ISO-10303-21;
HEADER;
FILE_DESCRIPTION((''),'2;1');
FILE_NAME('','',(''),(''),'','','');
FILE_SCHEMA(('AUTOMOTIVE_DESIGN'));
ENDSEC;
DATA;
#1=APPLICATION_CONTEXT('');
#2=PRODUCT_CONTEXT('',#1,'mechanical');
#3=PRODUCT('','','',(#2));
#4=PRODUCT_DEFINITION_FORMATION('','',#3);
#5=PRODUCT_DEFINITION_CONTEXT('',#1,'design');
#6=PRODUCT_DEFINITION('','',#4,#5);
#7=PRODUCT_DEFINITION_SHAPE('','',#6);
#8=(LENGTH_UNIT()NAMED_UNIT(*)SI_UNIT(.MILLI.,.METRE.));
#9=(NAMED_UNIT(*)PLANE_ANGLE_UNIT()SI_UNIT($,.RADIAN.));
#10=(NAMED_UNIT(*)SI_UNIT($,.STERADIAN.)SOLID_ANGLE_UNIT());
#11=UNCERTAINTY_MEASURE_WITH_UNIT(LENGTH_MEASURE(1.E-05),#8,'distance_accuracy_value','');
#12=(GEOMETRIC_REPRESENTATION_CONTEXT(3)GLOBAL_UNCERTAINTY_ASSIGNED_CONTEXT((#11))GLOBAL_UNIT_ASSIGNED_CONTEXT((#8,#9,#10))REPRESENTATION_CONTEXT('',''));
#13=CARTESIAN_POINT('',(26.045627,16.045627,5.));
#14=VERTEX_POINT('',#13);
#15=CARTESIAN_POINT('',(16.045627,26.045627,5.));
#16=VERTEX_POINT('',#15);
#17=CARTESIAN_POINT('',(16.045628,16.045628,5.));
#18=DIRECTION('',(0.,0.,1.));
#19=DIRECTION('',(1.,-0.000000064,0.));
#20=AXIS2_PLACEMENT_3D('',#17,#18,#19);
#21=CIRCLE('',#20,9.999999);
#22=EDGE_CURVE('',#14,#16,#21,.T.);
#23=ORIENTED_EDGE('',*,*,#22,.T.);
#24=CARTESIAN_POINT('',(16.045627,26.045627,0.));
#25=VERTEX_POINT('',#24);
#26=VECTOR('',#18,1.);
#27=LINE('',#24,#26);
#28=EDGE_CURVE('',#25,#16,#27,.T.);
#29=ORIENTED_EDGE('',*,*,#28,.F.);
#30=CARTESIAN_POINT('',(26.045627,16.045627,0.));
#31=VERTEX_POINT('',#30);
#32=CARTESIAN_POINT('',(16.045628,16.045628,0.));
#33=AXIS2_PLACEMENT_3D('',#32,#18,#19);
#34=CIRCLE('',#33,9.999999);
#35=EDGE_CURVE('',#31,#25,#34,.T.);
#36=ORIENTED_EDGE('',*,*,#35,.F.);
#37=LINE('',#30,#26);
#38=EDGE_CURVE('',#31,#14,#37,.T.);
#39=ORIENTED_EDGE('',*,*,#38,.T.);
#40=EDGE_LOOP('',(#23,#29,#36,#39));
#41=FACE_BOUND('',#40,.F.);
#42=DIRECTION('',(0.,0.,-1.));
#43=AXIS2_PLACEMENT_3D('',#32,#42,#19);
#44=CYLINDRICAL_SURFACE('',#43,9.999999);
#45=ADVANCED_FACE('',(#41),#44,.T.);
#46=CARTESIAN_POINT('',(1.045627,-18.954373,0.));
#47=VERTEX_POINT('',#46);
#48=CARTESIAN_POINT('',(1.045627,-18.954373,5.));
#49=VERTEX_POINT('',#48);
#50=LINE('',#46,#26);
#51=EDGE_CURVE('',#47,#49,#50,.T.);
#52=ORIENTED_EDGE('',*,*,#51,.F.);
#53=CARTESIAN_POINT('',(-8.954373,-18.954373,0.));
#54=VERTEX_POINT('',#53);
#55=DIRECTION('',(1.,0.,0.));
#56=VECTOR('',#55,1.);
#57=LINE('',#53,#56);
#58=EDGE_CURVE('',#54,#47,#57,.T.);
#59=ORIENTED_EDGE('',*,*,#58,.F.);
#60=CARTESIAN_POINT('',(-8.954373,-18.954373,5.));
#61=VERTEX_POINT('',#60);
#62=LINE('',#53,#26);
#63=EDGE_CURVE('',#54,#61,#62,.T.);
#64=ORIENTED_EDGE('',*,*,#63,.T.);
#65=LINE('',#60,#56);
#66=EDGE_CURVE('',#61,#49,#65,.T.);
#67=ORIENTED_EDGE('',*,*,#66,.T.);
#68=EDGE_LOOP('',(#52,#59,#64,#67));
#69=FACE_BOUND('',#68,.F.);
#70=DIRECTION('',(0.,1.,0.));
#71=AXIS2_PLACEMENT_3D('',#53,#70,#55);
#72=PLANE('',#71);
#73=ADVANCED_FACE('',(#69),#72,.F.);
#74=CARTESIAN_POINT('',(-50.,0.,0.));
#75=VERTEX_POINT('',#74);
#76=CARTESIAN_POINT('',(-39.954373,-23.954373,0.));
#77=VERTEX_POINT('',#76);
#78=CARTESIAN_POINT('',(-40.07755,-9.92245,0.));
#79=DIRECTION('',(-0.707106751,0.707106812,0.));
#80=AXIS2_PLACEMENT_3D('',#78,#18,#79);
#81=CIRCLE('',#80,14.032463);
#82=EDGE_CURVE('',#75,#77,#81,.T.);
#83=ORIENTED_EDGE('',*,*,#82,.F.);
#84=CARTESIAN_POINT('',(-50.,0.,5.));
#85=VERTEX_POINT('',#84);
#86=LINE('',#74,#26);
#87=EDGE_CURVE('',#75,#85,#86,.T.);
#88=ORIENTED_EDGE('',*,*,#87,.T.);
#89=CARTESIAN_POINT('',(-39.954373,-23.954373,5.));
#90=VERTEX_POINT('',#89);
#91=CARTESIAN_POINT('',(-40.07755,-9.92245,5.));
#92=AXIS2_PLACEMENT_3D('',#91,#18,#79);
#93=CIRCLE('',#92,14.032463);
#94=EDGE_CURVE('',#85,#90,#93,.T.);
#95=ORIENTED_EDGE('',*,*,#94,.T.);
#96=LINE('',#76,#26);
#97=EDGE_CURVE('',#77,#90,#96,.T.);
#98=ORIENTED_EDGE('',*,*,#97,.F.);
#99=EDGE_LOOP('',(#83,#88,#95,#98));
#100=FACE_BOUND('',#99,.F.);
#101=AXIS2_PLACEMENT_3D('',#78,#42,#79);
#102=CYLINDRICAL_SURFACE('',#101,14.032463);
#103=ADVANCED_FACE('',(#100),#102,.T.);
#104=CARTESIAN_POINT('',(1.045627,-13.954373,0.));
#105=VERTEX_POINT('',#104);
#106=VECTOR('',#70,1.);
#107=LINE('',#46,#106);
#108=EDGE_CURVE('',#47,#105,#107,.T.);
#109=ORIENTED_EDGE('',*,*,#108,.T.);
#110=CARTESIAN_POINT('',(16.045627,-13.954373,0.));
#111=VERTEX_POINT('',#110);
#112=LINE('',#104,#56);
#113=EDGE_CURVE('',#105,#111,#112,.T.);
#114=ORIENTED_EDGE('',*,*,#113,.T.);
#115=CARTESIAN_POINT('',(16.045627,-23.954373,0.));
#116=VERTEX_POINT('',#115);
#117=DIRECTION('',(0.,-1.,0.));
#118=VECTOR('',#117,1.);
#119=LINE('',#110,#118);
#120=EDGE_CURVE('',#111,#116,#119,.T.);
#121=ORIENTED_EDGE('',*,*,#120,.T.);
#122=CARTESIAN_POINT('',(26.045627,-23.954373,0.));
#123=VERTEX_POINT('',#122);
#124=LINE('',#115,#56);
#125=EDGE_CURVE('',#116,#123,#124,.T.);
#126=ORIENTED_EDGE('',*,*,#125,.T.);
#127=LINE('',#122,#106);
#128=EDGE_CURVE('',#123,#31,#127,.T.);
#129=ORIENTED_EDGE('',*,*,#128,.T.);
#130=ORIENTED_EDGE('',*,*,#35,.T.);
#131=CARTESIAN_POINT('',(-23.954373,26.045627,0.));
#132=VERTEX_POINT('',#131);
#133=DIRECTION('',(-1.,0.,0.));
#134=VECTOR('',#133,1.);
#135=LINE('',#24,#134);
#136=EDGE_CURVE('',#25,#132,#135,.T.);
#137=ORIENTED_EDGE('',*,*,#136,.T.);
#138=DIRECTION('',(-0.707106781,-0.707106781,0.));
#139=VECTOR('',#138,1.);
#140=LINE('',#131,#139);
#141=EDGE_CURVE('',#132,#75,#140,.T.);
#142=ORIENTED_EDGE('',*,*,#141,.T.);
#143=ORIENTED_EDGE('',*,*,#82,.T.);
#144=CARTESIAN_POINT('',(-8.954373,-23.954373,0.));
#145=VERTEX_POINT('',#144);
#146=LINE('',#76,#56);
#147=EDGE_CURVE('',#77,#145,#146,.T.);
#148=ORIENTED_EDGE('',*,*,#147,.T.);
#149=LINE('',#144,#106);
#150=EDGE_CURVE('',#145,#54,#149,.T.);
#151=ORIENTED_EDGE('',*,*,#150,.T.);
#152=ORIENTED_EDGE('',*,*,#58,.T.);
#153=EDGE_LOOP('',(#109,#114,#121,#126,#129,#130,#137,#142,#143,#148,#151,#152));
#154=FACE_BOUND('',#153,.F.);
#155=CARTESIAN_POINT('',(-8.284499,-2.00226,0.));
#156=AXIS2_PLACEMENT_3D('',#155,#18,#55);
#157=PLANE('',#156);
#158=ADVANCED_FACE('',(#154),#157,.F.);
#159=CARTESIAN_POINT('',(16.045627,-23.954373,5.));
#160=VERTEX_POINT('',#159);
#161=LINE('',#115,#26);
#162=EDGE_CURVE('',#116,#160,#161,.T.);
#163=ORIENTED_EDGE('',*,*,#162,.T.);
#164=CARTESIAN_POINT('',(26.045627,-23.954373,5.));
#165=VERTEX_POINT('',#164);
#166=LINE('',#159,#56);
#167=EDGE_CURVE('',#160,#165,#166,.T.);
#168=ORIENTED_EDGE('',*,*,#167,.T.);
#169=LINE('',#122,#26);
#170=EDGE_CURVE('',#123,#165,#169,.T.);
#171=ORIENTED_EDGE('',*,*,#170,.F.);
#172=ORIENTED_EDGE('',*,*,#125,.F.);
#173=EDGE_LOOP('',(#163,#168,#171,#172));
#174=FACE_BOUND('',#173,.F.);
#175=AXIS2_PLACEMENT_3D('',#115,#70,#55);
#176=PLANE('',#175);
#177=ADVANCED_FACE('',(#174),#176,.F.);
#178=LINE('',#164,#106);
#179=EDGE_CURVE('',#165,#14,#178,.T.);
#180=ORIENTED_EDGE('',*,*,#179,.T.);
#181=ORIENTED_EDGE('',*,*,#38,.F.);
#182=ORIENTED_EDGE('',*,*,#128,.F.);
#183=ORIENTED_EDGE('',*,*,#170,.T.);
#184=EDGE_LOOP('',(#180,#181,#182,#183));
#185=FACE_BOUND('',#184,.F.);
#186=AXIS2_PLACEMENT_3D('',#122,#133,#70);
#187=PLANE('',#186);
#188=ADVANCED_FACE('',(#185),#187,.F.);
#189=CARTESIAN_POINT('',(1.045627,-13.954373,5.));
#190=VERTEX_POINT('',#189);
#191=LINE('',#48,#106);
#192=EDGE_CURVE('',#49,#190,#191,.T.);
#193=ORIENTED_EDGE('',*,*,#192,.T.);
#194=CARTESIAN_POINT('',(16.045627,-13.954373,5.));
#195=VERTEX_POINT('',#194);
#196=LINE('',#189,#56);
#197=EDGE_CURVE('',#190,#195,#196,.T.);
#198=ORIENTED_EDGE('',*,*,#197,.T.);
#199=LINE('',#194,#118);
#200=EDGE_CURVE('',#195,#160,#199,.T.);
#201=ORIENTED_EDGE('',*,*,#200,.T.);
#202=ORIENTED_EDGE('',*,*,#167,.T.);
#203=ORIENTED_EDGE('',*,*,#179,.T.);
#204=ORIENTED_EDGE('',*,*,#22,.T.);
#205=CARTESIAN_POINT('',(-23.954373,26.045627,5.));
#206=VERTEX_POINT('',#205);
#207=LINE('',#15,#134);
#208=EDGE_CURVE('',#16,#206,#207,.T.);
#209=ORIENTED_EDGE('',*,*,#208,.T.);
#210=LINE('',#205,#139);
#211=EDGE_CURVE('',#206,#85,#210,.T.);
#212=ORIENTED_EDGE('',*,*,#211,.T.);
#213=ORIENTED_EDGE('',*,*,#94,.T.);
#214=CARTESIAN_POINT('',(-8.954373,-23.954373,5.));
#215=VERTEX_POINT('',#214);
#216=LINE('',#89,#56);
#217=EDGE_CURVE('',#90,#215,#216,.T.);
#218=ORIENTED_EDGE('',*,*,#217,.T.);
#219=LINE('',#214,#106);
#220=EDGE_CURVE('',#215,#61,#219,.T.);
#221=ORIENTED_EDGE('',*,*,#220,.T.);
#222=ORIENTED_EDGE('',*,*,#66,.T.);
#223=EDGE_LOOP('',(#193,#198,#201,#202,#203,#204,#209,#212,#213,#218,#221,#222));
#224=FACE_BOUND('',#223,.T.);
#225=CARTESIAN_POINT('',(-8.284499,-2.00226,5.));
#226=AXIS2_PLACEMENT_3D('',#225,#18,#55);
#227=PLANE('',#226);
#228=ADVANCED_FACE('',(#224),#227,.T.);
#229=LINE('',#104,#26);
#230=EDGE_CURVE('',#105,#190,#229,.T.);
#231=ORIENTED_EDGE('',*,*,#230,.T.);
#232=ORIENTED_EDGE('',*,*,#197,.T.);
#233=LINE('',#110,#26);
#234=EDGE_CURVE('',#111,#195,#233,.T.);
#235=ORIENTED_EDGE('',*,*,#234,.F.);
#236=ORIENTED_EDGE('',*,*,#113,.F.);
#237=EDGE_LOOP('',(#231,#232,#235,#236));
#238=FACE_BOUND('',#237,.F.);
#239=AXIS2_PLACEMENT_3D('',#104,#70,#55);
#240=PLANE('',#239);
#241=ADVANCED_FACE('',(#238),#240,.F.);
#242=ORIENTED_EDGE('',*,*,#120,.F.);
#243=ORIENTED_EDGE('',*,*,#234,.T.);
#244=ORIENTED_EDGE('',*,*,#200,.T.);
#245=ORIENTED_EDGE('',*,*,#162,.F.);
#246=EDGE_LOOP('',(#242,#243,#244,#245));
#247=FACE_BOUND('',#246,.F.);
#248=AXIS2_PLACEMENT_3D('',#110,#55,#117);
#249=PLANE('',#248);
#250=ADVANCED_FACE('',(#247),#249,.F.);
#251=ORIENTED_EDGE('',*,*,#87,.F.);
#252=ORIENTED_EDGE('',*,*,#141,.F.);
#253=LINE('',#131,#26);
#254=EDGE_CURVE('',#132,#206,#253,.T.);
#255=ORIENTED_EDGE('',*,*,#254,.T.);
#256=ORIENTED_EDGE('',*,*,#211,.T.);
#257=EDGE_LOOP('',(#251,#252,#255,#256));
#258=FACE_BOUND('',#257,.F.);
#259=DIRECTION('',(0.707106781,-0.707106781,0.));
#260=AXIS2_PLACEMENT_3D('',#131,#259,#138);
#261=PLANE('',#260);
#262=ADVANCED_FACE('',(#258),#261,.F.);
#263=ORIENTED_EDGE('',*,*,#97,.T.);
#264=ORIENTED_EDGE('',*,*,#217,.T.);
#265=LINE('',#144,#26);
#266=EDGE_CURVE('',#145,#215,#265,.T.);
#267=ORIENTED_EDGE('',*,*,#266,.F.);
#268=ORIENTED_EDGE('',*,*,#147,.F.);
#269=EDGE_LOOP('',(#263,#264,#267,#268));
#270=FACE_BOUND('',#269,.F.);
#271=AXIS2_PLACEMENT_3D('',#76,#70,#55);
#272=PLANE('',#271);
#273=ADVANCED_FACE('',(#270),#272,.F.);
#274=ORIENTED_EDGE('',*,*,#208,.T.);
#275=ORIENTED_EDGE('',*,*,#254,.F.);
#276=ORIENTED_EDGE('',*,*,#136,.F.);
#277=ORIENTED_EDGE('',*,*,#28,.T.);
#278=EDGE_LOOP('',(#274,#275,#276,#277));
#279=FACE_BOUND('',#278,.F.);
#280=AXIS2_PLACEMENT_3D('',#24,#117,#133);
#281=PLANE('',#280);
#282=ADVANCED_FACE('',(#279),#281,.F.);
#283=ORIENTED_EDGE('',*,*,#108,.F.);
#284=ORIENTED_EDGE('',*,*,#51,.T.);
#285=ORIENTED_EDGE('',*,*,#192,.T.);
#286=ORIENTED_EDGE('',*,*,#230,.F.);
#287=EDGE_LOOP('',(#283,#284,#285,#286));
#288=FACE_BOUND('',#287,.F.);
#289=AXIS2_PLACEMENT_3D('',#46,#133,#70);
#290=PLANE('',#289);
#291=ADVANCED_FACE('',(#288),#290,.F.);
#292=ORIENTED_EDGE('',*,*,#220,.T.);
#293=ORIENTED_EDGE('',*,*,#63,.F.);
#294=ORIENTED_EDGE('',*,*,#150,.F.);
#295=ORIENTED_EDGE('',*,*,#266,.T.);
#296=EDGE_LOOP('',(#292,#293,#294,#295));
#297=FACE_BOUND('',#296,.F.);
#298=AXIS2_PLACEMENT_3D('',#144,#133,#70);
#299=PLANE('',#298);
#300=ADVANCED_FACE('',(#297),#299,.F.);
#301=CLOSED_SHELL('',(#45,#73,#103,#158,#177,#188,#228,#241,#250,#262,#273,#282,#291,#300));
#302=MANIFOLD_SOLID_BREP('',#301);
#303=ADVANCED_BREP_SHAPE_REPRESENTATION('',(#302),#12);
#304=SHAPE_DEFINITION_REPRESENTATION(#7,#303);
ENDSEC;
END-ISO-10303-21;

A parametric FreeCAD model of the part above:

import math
import FreeCAD as App
import Part
import Sketcher

V = App.Vector
Q = App.Units.Quantity

doc = App.newDocument("Part")
params = doc.addObject("Spreadsheet::Sheet", "Params")
for row, (alias, value) in enumerate([
    ("sketch1_radius", "9.999999 mm"),
    ("sketch1_width", "40 mm"),
    ("sketch1_width2", "31 mm"),
    ("sketch1_width3", "15 mm"),
    ("pad1_length", "5 mm"),
], start=1):
    params.set(f"A{row}", alias)
    params.set(f"B{row}", "=" + value)
    params.setAlias(f"B{row}", alias)

body = doc.addObject("PartDesign::Body", "Body")

sketch1 = body.newObject("Sketcher::SketchObject", "Sketch")
sketch1.AttachmentSupport = (doc.getObject("XY_Plane"), [""])
sketch1.MapMode = "FlatFace"
sketch1.addGeometry(Part.LineSegment(V(16, 26, 0), V(-24, 26, 0)), False)
sketch1.addGeometry(Part.LineSegment(V(-24, 26, 0), V(-50, 0, 0)), False)
sketch1.addGeometry(Part.ArcOfCircle(Part.Circle(V(-40, -10, 0), V(0, 0, 1), 14), math.radians(135), math.radians(271)), False)
sketch1.addGeometry(Part.LineSegment(V(-40, -24, 0), V(-9, -24, 0)), False)
sketch1.addGeometry(Part.LineSegment(V(-9, -24, 0), V(-9, -19, 0)), False)
sketch1.addGeometry(Part.LineSegment(V(-9, -19, 0), V(1, -19, 0)), False)
sketch1.addGeometry(Part.LineSegment(V(1, -19, 0), V(1, -14, 0)), False)
sketch1.addGeometry(Part.LineSegment(V(1, -14, 0), V(16, -14, 0)), False)
sketch1.addGeometry(Part.LineSegment(V(16, -14, 0), V(16, -24, 0)), False)
sketch1.addGeometry(Part.LineSegment(V(16, -24, 0), V(26, -24, 0)), False)
sketch1.addGeometry(Part.LineSegment(V(26, -24, 0), V(26, 16, 0)), False)
sketch1.addGeometry(Part.ArcOfCircle(Part.Circle(V(16, 16, 0), V(0, 0, 1), 10), math.radians(0), math.radians(90)), False)
sketch1.addConstraint(Sketcher.Constraint("Coincident", 0, 2, 1, 1))
sketch1.addConstraint(Sketcher.Constraint("Tangent", 1, 2, 2, 1))
sketch1.addConstraint(Sketcher.Constraint("Coincident", 2, 2, 3, 1))
sketch1.addConstraint(Sketcher.Constraint("Coincident", 3, 2, 4, 1))
sketch1.addConstraint(Sketcher.Constraint("Coincident", 4, 2, 5, 1))
sketch1.addConstraint(Sketcher.Constraint("Coincident", 5, 2, 6, 1))
sketch1.addConstraint(Sketcher.Constraint("Coincident", 6, 2, 7, 1))
sketch1.addConstraint(Sketcher.Constraint("Coincident", 7, 2, 8, 1))
sketch1.addConstraint(Sketcher.Constraint("Coincident", 8, 2, 9, 1))
sketch1.addConstraint(Sketcher.Constraint("Coincident", 9, 2, 10, 1))
sketch1.addConstraint(Sketcher.Constraint("Tangent", 10, 2, 11, 1))
sketch1.addConstraint(Sketcher.Constraint("Tangent", 11, 2, 0, 1))
sketch1.addConstraint(Sketcher.Constraint("Horizontal", 0))
sketch1.addConstraint(Sketcher.Constraint("Horizontal", 3))
sketch1.addConstraint(Sketcher.Constraint("Vertical", 4))
sketch1.addConstraint(Sketcher.Constraint("Horizontal", 5))
sketch1.addConstraint(Sketcher.Constraint("Vertical", 6))
sketch1.addConstraint(Sketcher.Constraint("Horizontal", 7))
sketch1.addConstraint(Sketcher.Constraint("Vertical", 8))
sketch1.addConstraint(Sketcher.Constraint("Horizontal", 9))
sketch1.addConstraint(Sketcher.Constraint("Vertical", 10))
sketch1.addConstraint(Sketcher.Constraint("PointOnObject", 1, 2, -1))
sketch1.addConstraint(Sketcher.Constraint("Horizontal", 3, 2, 8, 2))
sketch1.addConstraint(Sketcher.Constraint("Vertical", 11, 3, 7, 2))
sketch1.addConstraint(Sketcher.Constraint("Equal", 5, 9))
sketch1.addConstraint(Sketcher.Constraint("Equal", 4, 6))
sketch1.addConstraint(Sketcher.Constraint("Equal", 9, 8))
sketch1.addConstraint(Sketcher.Constraint("Equal", 0, 10))
sketch1.addConstraint(Sketcher.Constraint("Radius", 11, Q("9.999999 mm")))
sketch1.addConstraint(Sketcher.Constraint("DistanceX", 0, 2, 0, 1, Q("40 mm")))
sketch1.addConstraint(Sketcher.Constraint("DistanceX", 3, 1, 3, 2, Q("31 mm")))
sketch1.addConstraint(Sketcher.Constraint("DistanceX", 7, 1, 7, 2, Q("15 mm")))
sketch1.addConstraint(Sketcher.Constraint("Angle", 1, Q("-135 deg")))
sketch1.addConstraint(Sketcher.Constraint("DistanceX", 1, 2, -1, 1, Q("50 mm")))
sketch1.addConstraint(Sketcher.Constraint("Radius", 2, Q("14.032463 mm")))
sketch1.setExpression("Constraints[28]", "Params.sketch1_radius")
sketch1.setExpression("Constraints[29]", "Params.sketch1_width")
sketch1.setExpression("Constraints[30]", "Params.sketch1_width2")
sketch1.setExpression("Constraints[31]", "Params.sketch1_width3")
pad1 = body.newObject("PartDesign::Pad", "Pad")
pad1.Profile = sketch1
pad1.setExpression("Length", "Params.pad1_length")

doc.recompute()
